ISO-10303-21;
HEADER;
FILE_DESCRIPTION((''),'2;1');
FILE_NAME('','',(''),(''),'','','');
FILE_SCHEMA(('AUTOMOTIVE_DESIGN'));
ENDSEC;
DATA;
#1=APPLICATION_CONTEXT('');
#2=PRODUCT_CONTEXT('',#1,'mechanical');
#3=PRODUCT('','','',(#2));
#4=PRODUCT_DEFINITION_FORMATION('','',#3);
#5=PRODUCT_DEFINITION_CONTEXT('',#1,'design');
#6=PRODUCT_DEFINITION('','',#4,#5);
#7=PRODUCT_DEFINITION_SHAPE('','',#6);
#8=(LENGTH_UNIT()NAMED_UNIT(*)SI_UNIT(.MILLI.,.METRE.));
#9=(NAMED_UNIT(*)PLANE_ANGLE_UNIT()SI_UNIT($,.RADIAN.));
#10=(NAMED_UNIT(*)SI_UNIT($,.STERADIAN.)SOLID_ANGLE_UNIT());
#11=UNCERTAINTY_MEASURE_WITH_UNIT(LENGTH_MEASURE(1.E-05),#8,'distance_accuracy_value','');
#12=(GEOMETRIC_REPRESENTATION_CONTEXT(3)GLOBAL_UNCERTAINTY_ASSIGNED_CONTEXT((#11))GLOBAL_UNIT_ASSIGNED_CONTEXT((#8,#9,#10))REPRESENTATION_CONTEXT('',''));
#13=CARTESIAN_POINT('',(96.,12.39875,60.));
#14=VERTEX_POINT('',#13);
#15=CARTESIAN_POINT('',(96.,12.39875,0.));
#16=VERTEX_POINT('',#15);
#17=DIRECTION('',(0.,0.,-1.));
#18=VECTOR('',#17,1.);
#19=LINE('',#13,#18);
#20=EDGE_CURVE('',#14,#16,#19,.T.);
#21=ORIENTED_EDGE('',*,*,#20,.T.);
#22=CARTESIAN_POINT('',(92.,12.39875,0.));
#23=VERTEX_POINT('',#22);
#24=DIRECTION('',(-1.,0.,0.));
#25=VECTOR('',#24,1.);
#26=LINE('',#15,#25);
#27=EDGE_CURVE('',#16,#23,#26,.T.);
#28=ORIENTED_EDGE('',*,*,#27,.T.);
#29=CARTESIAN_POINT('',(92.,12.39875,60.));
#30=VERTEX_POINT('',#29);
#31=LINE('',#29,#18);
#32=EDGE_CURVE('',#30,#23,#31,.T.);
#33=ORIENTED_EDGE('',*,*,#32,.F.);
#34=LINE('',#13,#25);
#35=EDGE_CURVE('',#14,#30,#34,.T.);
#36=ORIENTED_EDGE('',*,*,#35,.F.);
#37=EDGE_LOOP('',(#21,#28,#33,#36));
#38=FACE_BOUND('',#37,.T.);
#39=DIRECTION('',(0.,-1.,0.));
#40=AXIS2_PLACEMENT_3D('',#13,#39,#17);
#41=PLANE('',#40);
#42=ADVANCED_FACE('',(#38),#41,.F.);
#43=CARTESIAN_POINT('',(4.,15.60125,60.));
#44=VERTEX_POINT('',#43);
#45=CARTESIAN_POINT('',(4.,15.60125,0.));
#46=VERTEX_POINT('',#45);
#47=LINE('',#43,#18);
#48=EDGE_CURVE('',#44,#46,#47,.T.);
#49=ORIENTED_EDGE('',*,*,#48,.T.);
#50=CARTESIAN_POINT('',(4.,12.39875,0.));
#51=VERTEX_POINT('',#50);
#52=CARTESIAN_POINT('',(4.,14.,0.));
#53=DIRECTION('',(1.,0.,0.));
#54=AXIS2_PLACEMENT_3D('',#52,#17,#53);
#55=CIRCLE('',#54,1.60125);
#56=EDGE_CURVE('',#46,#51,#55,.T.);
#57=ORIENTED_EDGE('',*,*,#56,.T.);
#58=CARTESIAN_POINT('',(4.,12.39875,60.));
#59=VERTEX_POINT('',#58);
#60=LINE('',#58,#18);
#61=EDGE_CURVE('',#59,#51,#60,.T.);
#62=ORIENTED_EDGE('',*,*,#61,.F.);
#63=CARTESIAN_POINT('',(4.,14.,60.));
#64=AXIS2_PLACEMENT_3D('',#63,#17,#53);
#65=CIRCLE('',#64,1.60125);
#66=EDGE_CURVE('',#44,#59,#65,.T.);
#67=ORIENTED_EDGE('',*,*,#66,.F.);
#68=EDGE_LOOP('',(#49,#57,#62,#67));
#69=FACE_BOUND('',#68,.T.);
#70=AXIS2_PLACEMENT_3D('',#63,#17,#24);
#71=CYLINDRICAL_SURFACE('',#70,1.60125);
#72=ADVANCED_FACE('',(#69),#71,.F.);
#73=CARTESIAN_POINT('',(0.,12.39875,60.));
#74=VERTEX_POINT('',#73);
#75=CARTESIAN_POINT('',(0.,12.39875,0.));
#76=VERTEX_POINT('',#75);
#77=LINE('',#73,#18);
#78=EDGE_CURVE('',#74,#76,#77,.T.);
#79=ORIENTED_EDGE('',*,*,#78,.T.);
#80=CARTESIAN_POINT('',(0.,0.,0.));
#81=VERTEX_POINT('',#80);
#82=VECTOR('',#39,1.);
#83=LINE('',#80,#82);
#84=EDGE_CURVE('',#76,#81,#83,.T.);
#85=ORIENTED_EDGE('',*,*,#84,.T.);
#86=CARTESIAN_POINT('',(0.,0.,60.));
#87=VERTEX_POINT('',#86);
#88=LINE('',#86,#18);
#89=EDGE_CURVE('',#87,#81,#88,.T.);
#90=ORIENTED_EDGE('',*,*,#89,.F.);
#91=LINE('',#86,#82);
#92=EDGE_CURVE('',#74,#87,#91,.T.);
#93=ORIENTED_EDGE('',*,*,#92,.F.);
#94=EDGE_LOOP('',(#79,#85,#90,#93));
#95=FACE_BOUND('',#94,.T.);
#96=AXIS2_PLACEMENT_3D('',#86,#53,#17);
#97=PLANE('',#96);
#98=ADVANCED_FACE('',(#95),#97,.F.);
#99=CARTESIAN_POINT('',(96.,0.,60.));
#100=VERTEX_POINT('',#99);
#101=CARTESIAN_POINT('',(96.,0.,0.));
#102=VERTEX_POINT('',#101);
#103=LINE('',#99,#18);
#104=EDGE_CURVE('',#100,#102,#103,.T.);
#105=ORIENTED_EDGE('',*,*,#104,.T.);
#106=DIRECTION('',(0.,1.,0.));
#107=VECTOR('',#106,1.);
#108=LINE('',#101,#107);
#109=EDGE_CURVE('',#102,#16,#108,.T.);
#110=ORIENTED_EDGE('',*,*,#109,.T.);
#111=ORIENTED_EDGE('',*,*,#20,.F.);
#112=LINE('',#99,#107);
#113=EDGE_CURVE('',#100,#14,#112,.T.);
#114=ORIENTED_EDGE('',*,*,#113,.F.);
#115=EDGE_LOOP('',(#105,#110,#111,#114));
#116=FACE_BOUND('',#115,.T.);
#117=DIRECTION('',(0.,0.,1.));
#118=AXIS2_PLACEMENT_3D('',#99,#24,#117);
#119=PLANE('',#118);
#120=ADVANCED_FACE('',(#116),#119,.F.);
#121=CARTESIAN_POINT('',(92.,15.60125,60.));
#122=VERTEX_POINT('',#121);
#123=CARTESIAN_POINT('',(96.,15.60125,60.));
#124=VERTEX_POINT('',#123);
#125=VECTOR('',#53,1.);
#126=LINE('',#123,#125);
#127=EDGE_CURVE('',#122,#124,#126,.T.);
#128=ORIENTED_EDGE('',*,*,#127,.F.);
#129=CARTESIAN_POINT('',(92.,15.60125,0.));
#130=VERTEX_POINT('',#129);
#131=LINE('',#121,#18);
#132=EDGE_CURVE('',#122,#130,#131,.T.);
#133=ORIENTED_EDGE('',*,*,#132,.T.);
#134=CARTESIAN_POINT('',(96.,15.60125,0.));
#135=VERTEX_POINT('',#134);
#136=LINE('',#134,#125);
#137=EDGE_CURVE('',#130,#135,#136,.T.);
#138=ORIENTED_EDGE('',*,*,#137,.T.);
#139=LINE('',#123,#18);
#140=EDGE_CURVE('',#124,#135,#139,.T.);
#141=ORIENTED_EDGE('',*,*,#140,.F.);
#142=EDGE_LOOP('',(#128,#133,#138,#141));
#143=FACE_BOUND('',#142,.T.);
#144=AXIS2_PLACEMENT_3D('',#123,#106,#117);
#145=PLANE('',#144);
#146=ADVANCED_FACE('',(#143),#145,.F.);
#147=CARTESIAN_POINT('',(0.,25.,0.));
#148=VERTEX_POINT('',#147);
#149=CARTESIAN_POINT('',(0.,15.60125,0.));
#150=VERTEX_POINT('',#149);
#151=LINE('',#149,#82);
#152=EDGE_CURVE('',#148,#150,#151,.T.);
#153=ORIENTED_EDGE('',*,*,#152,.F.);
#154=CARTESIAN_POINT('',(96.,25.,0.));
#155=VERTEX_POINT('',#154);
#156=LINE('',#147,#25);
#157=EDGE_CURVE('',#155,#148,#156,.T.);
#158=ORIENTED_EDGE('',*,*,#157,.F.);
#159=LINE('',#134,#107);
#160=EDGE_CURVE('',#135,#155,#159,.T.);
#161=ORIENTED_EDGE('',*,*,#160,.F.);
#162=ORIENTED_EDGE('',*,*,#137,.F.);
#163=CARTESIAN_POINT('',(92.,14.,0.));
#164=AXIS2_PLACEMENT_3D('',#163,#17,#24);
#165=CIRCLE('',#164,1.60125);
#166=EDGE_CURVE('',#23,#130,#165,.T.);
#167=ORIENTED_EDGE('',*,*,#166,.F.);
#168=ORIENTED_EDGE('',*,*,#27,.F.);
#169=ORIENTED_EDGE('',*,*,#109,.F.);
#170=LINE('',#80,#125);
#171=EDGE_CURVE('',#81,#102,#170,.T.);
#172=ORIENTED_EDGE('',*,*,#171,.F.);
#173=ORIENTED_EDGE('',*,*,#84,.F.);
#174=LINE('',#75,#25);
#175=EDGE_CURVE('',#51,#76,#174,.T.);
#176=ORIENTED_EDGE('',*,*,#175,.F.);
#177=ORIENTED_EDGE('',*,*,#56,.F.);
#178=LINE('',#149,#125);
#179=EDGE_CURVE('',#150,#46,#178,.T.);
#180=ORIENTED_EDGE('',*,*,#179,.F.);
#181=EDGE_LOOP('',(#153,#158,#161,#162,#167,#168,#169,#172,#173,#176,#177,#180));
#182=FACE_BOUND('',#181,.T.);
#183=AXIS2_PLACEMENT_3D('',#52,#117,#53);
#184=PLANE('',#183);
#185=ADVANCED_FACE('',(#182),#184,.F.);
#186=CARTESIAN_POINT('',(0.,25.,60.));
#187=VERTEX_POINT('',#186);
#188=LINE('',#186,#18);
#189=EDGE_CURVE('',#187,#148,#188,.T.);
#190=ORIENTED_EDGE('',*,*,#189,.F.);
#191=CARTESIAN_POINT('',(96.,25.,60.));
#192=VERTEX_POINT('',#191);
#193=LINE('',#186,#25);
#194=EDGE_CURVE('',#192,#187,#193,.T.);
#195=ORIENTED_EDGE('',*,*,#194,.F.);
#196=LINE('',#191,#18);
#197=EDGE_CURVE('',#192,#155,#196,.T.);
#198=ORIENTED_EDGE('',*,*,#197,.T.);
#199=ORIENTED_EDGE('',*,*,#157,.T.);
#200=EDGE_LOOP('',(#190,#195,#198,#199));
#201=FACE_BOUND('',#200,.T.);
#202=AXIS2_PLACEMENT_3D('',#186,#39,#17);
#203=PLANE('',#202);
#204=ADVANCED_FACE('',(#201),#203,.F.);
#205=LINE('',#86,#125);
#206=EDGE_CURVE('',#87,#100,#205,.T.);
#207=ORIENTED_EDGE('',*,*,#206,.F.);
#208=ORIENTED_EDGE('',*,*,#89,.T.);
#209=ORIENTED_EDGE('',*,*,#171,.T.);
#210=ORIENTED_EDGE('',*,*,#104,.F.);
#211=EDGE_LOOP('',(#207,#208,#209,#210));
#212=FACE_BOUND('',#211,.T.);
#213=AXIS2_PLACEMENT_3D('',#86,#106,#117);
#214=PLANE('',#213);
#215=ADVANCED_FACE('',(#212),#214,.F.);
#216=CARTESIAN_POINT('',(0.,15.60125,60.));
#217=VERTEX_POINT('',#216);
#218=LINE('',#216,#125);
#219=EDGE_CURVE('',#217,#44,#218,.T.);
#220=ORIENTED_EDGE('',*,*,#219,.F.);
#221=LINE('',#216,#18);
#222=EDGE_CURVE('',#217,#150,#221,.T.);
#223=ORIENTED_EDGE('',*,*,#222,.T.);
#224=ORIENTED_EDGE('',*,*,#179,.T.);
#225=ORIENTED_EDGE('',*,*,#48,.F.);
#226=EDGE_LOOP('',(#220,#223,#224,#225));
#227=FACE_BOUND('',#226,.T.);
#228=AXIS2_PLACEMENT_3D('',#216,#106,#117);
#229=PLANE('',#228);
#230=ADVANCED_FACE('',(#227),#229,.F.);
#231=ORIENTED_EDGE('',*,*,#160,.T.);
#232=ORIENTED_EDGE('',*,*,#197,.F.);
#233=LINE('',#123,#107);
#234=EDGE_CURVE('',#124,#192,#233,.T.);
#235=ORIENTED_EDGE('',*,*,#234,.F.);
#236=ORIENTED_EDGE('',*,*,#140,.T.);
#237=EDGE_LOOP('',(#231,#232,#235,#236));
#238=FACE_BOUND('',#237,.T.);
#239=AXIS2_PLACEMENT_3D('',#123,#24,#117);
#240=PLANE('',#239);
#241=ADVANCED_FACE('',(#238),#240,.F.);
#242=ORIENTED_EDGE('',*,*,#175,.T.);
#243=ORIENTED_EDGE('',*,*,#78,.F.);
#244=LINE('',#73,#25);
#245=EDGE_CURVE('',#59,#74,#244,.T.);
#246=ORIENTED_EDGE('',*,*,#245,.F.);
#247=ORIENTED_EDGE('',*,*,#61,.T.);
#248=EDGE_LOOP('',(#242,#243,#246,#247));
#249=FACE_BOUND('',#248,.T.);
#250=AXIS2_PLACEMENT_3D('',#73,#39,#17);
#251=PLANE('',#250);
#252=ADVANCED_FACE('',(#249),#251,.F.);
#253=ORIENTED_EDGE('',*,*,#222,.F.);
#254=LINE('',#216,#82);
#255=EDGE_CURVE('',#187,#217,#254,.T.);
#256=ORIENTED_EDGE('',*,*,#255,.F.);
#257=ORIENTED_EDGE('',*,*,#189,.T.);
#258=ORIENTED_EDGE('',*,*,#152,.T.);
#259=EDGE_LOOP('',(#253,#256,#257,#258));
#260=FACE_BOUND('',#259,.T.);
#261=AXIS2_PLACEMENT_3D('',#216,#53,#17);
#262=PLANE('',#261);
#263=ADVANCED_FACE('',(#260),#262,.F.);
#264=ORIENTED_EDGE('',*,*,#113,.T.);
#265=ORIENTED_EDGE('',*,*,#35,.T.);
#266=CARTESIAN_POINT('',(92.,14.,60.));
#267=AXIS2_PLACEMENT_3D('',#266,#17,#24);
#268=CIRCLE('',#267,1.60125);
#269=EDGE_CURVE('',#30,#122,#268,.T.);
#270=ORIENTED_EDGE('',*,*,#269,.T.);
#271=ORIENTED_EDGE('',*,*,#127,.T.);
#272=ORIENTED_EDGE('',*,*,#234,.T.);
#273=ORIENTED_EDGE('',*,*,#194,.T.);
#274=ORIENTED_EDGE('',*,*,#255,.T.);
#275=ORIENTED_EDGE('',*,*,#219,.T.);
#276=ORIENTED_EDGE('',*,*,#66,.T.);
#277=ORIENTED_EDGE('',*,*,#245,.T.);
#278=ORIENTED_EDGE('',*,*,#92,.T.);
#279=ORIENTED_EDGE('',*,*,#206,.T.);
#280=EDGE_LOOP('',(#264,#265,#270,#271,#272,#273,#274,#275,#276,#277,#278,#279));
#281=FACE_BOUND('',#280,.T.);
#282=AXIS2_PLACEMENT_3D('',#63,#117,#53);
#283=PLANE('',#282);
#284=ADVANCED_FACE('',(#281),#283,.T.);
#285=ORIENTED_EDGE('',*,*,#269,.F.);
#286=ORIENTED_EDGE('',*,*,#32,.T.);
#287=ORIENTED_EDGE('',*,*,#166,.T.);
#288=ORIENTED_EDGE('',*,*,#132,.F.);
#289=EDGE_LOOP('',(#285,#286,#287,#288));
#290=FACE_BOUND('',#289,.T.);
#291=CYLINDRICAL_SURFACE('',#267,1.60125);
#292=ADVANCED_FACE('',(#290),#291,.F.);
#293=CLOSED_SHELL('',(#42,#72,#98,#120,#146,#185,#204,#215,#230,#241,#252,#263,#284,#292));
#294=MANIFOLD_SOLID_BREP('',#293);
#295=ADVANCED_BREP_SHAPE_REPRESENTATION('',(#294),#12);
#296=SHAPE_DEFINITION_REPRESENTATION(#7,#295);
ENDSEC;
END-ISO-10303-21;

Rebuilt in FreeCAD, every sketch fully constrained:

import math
import FreeCAD as App
import Part
import Sketcher

V = App.Vector
Q = App.Units.Quantity

doc = App.newDocument("Part")
body = doc.addObject("PartDesign::Body", "Body")

sketch1 = body.newObject("Sketcher::SketchObject", "Sketch")
sketch1.AttachmentSupport = (doc.getObject("XY_Plane"), [""])
sketch1.MapMode = "FlatFace"
sketch1.addGeometry(Part.LineSegment(V(0, 0, 0), V(96, 0, 0)), False)
sketch1.addGeometry(Part.LineSegment(V(96, 0, 0), V(96, 12.39875, 0)), False)
sketch1.addGeometry(Part.LineSegment(V(96, 12.39875, 0), V(92, 12.39875, 0)), False)
sketch1.addGeometry(Part.ArcOfCircle(Part.Circle(V(92, 14, 0), V(0, 0, 1), 1.60125), math.radians(90), math.radians(270)), False)
sketch1.addGeometry(Part.LineSegment(V(92, 15.60125, 0), V(96, 15.60125, 0)), False)
sketch1.addGeometry(Part.LineSegment(V(96, 15.60125, 0), V(96, 25, 0)), False)
sketch1.addGeometry(Part.LineSegment(V(96, 25, 0), V(0, 25, 0)), False)
sketch1.addGeometry(Part.LineSegment(V(0, 25, 0), V(0, 15.60125, 0)), False)
sketch1.addGeometry(Part.LineSegment(V(0, 15.60125, 0), V(4, 15.60125, 0)), False)
sketch1.addGeometry(Part.ArcOfCircle(Part.Circle(V(4, 14, 0), V(0, 0, 1), 1.60125), math.radians(-90), math.radians(90)), False)
sketch1.addGeometry(Part.LineSegment(V(4, 12.39875, 0), V(0, 12.39875, 0)), False)
sketch1.addGeometry(Part.LineSegment(V(0, 12.39875, 0), V(0, 0, 0)), False)
sketch1.addConstraint(Sketcher.Constraint("Coincident", 0, 2, 1, 1))
sketch1.addConstraint(Sketcher.Constraint("Coincident", 1, 2, 2, 1))
sketch1.addConstraint(Sketcher.Constraint("Tangent", 2, 2, 3, 2))
sketch1.addConstraint(Sketcher.Constraint("Tangent", 3, 1, 4, 1))
sketch1.addConstraint(Sketcher.Constraint("Coincident", 4, 2, 5, 1))
sketch1.addConstraint(Sketcher.Constraint("Coincident", 5, 2, 6, 1))
sketch1.addConstraint(Sketcher.Constraint("Coincident", 6, 2, 7, 1))
sketch1.addConstraint(Sketcher.Constraint("Coincident", 7, 2, 8, 1))
sketch1.addConstraint(Sketcher.Constraint("Tangent", 8, 2, 9, 2))
sketch1.addConstraint(Sketcher.Constraint("Tangent", 9, 1, 10, 1))
sketch1.addConstraint(Sketcher.Constraint("Coincident", 10, 2, 11, 1))
sketch1.addConstraint(Sketcher.Constraint("Coincident", 11, 2, 0, 1))
sketch1.addConstraint(Sketcher.Constraint("Horizontal", 0))
sketch1.addConstraint(Sketcher.Constraint("Vertical", 1))
sketch1.addConstraint(Sketcher.Constraint("Horizontal", 2))
sketch1.addConstraint(Sketcher.Constraint("Horizontal", 4))
sketch1.addConstraint(Sketcher.Constraint("Vertical", 5))
sketch1.addConstraint(Sketcher.Constraint("Horizontal", 6))
sketch1.addConstraint(Sketcher.Constraint("Vertical", 7))
sketch1.addConstraint(Sketcher.Constraint("Horizontal", 8))
sketch1.addConstraint(Sketcher.Constraint("Horizontal", 10))
sketch1.addConstraint(Sketcher.Constraint("Vertical", 11))
sketch1.addConstraint(Sketcher.Constraint("Coincident", 11, 2, -1, 1))
sketch1.addConstraint(Sketcher.Constraint("Equal", 3, 9))
sketch1.addConstraint(Sketcher.Constraint("PointOnObject", 6, 2, -2))
sketch1.addConstraint(Sketcher.Constraint("Horizontal", 3, 3, 9, 3))
sketch1.addConstraint(Sketcher.Constraint("Vertical", 1, 2, 4, 2))
sketch1.addConstraint(Sketcher.Constraint("Equal", 4, 8))
sketch1.addConstraint(Sketcher.Constraint("DistanceX", 0, 1, 0, 2, Q("96 mm")))
sketch1.addConstraint(Sketcher.Constraint("DistanceX", 2, 2, 2, 1, Q("4 mm")))
sketch1.addConstraint(Sketcher.Constraint("DistanceY", -1, 1, 3, 3, Q("14 mm")))
sketch1.addConstraint(Sketcher.Constraint("DistanceY", -1, 1, 5, 2, Q("25 mm")))
sketch1.addConstraint(Sketcher.Constraint("Radius", 3, Q("1.60125 mm")))
pad1 = body.newObject("PartDesign::Pad", "Pad")
pad1.Profile = sketch1
pad1.Length = 60

doc.recompute()
